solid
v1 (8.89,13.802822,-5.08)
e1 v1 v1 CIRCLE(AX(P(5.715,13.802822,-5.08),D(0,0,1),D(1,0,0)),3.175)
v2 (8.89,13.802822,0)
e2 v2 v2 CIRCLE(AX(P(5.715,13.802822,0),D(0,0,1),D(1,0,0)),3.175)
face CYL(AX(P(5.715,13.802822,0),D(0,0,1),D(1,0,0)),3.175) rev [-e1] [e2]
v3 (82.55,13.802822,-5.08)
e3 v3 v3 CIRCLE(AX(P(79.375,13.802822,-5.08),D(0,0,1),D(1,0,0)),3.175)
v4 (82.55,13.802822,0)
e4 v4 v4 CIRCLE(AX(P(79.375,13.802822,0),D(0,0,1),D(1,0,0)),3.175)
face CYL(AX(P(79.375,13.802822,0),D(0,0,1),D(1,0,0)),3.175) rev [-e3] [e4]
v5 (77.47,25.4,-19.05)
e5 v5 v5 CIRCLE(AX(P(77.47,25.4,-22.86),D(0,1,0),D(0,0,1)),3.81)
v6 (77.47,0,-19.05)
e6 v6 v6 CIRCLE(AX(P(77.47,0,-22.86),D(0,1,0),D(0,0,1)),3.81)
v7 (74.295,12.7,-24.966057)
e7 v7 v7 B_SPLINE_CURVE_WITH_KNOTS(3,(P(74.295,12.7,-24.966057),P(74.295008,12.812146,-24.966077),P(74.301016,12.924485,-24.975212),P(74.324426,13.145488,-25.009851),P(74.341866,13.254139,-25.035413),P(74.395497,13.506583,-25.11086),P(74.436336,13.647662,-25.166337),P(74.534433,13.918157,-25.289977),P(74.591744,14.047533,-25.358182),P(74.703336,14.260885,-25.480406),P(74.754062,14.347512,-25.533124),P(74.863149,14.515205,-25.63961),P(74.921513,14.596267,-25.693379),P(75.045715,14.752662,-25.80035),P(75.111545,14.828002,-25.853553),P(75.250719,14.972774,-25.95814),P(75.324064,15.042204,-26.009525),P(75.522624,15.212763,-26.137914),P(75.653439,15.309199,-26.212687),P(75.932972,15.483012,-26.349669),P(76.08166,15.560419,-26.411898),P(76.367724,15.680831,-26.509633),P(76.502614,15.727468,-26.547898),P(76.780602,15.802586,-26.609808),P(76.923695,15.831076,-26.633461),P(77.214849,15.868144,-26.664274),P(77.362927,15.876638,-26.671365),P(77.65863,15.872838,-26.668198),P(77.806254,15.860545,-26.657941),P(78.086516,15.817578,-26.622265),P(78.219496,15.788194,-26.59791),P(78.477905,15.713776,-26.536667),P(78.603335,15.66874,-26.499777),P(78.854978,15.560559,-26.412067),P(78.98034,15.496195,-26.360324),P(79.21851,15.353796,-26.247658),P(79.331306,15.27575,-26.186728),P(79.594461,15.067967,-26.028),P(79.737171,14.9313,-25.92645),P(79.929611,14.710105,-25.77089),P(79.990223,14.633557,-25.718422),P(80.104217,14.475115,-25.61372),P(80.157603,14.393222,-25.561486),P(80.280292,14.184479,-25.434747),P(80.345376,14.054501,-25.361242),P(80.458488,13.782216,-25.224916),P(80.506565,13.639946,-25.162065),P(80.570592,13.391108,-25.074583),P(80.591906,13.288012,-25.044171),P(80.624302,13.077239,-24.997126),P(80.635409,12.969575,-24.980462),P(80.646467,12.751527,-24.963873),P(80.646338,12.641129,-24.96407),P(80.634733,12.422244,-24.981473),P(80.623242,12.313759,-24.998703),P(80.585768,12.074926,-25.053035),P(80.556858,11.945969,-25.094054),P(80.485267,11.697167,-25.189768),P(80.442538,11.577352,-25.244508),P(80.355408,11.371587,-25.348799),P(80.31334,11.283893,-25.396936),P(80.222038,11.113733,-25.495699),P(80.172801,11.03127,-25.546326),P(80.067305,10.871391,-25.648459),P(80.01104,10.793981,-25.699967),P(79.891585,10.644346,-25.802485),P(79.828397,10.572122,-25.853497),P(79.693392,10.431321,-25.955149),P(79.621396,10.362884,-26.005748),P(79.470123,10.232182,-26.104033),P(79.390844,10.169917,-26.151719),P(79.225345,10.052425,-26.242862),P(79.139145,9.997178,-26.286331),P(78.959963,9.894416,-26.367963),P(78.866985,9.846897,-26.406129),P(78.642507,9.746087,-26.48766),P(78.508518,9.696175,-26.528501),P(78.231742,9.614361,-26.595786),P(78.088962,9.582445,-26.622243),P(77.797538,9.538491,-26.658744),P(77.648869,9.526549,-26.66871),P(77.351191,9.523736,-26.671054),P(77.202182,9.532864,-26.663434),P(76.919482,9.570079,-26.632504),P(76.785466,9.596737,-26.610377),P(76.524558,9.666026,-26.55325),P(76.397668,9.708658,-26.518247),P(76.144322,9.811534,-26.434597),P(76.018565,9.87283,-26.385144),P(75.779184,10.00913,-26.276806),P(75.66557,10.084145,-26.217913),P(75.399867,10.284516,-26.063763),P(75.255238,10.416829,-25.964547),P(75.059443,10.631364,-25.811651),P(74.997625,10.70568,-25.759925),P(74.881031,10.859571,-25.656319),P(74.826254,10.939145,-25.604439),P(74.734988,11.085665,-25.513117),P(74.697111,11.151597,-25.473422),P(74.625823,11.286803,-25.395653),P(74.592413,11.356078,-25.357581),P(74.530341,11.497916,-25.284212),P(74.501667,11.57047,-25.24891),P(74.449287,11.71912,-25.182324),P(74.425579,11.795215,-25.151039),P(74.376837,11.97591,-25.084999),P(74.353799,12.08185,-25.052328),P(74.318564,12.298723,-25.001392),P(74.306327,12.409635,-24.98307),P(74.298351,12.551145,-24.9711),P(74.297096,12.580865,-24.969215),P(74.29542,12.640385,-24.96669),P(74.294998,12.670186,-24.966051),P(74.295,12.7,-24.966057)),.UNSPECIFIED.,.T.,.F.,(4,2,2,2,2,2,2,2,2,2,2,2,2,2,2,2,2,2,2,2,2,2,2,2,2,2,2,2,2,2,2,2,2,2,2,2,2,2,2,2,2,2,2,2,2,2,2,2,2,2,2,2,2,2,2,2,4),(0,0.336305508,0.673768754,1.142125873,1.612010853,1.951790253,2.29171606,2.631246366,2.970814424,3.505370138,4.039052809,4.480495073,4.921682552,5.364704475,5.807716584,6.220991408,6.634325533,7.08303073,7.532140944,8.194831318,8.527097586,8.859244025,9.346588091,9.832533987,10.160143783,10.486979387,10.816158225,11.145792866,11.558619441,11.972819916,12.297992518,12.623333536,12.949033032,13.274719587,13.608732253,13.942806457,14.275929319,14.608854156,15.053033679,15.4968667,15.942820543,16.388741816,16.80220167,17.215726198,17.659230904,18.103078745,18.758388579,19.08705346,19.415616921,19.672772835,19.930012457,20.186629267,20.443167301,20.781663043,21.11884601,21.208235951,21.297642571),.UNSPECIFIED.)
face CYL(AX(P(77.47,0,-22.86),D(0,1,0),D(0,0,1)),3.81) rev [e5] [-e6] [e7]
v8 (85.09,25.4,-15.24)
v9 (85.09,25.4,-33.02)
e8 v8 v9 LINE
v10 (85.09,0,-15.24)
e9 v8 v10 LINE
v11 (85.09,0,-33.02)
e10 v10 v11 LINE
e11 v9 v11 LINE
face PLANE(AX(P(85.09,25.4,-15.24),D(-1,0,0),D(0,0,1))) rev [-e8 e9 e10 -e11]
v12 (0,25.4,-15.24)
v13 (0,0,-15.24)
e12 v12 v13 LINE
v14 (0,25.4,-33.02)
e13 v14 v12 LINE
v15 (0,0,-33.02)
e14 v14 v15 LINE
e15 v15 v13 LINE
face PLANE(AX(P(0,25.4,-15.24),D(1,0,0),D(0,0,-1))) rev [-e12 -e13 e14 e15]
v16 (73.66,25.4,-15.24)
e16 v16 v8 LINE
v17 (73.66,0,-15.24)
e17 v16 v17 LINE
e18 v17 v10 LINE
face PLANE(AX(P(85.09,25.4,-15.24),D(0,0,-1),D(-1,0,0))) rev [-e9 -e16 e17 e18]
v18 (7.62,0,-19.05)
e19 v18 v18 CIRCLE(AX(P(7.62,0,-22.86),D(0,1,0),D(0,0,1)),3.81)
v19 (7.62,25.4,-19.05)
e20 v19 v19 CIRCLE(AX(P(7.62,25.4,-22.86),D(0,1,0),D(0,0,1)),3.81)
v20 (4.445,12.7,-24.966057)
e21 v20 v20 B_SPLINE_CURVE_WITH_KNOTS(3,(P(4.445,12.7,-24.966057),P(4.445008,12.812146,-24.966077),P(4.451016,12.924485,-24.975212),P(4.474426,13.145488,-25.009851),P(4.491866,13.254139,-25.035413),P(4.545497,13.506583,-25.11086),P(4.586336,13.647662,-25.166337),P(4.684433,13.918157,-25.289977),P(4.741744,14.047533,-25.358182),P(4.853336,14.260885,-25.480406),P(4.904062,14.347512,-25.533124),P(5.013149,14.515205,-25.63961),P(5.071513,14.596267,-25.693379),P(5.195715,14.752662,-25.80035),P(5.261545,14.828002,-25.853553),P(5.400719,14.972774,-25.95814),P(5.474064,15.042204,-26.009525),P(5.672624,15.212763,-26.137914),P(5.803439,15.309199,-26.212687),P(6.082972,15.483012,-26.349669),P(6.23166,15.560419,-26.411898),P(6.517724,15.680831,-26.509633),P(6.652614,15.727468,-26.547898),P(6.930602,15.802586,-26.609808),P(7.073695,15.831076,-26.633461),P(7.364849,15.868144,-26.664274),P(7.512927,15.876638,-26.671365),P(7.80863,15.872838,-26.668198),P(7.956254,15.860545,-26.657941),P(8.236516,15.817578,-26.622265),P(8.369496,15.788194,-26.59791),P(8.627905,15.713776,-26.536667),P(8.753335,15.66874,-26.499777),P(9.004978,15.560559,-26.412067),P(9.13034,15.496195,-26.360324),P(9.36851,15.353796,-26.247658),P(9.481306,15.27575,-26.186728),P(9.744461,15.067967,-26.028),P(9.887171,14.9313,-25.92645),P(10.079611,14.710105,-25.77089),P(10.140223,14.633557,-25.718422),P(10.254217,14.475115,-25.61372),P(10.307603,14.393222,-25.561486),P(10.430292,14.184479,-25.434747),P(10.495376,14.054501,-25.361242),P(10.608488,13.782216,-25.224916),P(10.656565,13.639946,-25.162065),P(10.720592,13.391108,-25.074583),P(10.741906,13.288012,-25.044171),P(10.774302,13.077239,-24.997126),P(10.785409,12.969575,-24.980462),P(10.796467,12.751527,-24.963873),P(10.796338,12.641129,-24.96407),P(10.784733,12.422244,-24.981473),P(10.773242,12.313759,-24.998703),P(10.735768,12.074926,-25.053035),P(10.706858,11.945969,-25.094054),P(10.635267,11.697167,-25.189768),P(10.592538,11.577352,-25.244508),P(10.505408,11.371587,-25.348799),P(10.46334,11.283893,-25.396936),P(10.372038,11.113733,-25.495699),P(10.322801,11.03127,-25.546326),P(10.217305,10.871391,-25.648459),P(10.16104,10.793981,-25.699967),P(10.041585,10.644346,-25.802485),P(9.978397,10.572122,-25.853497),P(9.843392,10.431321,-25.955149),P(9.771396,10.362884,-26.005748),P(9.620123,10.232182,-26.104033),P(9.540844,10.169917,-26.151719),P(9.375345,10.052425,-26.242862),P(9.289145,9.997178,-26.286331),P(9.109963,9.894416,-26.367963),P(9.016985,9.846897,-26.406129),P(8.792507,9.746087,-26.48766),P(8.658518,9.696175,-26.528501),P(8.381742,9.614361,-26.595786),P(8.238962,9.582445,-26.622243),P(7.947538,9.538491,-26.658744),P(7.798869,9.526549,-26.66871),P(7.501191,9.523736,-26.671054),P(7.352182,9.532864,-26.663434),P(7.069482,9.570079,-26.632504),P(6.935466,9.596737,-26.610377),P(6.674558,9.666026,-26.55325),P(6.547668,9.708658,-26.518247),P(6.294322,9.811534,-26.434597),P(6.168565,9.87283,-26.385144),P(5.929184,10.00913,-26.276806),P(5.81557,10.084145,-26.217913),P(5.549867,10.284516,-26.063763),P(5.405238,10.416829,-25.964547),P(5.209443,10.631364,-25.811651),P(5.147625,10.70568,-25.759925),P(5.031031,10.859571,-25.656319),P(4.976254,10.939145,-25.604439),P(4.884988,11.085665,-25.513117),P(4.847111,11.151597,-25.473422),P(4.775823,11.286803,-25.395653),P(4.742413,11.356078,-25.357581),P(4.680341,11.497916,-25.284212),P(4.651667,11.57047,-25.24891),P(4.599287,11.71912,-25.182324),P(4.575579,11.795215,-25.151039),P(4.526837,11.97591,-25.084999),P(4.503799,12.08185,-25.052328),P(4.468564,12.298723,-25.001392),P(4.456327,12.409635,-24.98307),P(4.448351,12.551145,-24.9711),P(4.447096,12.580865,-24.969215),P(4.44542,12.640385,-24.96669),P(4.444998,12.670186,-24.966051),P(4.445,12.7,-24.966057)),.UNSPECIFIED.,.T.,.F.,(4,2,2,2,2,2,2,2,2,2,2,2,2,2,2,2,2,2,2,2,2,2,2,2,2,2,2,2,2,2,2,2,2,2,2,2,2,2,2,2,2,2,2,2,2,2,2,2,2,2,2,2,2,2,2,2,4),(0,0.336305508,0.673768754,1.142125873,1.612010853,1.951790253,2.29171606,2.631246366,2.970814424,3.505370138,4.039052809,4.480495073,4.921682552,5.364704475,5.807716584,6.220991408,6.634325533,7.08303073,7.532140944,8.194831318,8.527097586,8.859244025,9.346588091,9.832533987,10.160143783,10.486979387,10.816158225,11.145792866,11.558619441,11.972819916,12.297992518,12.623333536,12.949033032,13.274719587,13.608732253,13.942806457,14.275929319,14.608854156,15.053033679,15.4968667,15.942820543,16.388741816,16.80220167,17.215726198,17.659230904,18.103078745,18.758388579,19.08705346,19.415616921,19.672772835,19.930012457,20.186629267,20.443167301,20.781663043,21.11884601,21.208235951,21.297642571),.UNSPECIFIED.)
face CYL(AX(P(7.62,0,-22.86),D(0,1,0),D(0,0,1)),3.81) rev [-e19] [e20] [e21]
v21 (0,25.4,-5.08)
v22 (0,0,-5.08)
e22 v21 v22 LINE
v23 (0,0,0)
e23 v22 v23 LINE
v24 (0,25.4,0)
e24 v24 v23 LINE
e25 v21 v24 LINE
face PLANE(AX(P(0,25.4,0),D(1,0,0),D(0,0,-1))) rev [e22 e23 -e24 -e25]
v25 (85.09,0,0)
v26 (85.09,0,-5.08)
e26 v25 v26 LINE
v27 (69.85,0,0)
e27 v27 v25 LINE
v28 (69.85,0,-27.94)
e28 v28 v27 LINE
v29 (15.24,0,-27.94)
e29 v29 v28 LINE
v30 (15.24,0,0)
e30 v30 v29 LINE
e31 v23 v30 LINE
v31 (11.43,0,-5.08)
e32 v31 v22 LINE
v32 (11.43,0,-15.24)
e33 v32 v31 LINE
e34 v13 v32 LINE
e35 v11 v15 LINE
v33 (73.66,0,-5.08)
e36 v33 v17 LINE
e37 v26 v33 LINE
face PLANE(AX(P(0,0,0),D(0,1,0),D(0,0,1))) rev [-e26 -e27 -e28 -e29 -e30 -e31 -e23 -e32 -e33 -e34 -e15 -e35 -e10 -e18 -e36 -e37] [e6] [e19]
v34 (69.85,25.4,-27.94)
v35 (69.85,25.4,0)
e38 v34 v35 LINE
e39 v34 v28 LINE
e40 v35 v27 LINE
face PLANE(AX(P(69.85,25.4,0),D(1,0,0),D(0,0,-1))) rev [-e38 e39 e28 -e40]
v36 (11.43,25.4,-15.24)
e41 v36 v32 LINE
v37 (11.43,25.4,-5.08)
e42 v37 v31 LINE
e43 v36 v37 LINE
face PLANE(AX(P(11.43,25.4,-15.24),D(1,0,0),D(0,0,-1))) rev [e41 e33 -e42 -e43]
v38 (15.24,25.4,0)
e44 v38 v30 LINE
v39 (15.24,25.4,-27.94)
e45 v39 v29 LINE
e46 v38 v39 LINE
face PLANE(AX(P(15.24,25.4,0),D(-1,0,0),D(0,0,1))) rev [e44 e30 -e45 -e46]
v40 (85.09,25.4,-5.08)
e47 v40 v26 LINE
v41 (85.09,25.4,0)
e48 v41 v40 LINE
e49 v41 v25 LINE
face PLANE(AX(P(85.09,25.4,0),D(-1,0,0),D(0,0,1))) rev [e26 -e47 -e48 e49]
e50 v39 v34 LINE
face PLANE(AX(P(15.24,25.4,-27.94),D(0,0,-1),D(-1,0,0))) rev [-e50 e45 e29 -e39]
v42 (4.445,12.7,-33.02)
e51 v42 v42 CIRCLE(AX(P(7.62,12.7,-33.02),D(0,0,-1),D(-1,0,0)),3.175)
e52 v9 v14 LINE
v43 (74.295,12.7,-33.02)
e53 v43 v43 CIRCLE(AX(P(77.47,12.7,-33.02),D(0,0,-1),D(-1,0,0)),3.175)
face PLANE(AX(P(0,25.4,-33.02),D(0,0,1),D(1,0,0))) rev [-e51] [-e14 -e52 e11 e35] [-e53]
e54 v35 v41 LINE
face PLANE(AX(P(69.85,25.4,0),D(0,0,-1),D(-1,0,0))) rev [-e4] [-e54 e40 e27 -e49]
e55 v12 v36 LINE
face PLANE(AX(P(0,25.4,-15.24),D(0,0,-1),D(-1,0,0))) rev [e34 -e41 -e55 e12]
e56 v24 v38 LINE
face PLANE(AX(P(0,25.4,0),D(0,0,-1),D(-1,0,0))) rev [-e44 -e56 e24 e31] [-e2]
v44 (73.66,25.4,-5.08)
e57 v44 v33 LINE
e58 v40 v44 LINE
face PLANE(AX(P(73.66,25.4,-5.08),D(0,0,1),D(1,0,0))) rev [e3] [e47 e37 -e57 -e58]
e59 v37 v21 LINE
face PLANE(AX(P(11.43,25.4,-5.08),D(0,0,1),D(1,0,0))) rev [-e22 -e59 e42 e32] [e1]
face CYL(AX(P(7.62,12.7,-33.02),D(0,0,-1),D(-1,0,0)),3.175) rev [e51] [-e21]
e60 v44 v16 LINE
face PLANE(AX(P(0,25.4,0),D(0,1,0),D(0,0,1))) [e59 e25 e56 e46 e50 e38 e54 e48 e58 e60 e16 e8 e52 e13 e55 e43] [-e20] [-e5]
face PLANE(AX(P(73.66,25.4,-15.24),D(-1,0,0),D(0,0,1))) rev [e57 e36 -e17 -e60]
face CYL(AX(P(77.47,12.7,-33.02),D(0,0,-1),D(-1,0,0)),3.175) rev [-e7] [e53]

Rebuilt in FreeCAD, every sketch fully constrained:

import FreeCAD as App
import Part
import Sketcher
from FreeCAD import Vector
Q = App.Units.Quantity

doc = App.newDocument("Part")
body = doc.addObject("PartDesign::Body", "Body")

# Sketch on XZ plane
sketch1 = doc.addObject("Sketcher::SketchObject", "Sketch")
body.addObject(sketch1)
sketch1.AttachmentSupport = (doc.XZ_Plane, [""])
sketch1.MapMode = "FlatFace"
sketch1.addGeometry([
    Part.LineSegment(Vector(70, 0, 0), Vector(85, 0, 0)),  # 0
    Part.LineSegment(Vector(85, 0, 0), Vector(85, -5, 0)),  # 1
    Part.LineSegment(Vector(85, -5, 0), Vector(74, -5, 0)),  # 2
    Part.LineSegment(Vector(74, -5, 0), Vector(74, -15, 0)),  # 3
    Part.LineSegment(Vector(74, -15, 0), Vector(85, -15, 0)),  # 4
    Part.LineSegment(Vector(85, -15, 0), Vector(85, -33, 0)),  # 5
    Part.LineSegment(Vector(85, -33, 0), Vector(0, -33, 0)),  # 6
    Part.LineSegment(Vector(0, -33, 0), Vector(0, -15, 0)),  # 7
    Part.LineSegment(Vector(0, -15, 0), Vector(11, -15, 0)),  # 8
    Part.LineSegment(Vector(11, -15, 0), Vector(11, -5, 0)),  # 9
    Part.LineSegment(Vector(11, -5, 0), Vector(0, -5, 0)),  # 10
    Part.LineSegment(Vector(0, -5, 0), Vector(0, 0, 0)),  # 11
    Part.LineSegment(Vector(0, 0, 0), Vector(15, 0, 0)),  # 12
    Part.LineSegment(Vector(15, 0, 0), Vector(15, -28, 0)),  # 13
    Part.LineSegment(Vector(15, -28, 0), Vector(70, -28, 0)),  # 14
    Part.LineSegment(Vector(70, -28, 0), Vector(70, 0, 0)),  # 15
], False)
sketch1.addConstraint([
    Sketcher.Constraint("Coincident", 0, 2, 1, 1),
    Sketcher.Constraint("Coincident", 1, 2, 2, 1),
    Sketcher.Constraint("Coincident", 2, 2, 3, 1),
    Sketcher.Constraint("Coincident", 3, 2, 4, 1),
    Sketcher.Constraint("Coincident", 4, 2, 5, 1),
    Sketcher.Constraint("Coincident", 5, 2, 6, 1),
    Sketcher.Constraint("Coincident", 6, 2, 7, 1),
    Sketcher.Constraint("Coincident", 7, 2, 8, 1),
    Sketcher.Constraint("Coincident", 8, 2, 9, 1),
    Sketcher.Constraint("Coincident", 9, 2, 10, 1),
    Sketcher.Constraint("Coincident", 10, 2, 11, 1),
    Sketcher.Constraint("Coincident", 11, 2, 12, 1),
    Sketcher.Constraint("Coincident", 12, 2, 13, 1),
    Sketcher.Constraint("Coincident", 13, 2, 14, 1),
    Sketcher.Constraint("Coincident", 14, 2, 15, 1),
    Sketcher.Constraint("Coincident", 15, 2, 0, 1),
    Sketcher.Constraint("Horizontal", 0),
    Sketcher.Constraint("Vertical", 1),
    Sketcher.Constraint("Horizontal", 2),
    Sketcher.Constraint("Vertical", 3),
    Sketcher.Constraint("Horizontal", 4),
    Sketcher.Constraint("Vertical", 5),
    Sketcher.Constraint("Horizontal", 6),
    Sketcher.Constraint("Vertical", 7),
    Sketcher.Constraint("Horizontal", 8),
    Sketcher.Constraint("Vertical", 9),
    Sketcher.Constraint("Horizontal", 10),
    Sketcher.Constraint("Vertical", 11),
    Sketcher.Constraint("Horizontal", 12),
    Sketcher.Constraint("Vertical", 13),
    Sketcher.Constraint("Horizontal", 14),
    Sketcher.Constraint("Vertical", 15),
    Sketcher.Constraint("Coincident", 11, 2, -1, 1),
    Sketcher.Constraint("PointOnObject", 0, 2, -1),
    Sketcher.Constraint("PointOnObject", 6, 2, -2),
    Sketcher.Constraint("Horizontal", 4, 2, 7, 2),
    Sketcher.Constraint("Horizontal", 2, 2, 9, 2),
    Sketcher.Constraint("Vertical", 1, 2, 4, 2),
    Sketcher.Constraint("Equal", 4, 8),
    Sketcher.Constraint("Equal", 0, 12),
    Sketcher.Constraint("DistanceX", 0, 1, 0, 2, Q("0.6 in")),
    Sketcher.Constraint("DistanceY", 1, 2, 1, 1, Q("0.2 in")),
    Sketcher.Constraint("DistanceY", 3, 2, 3, 1, Q("0.4 in")),
    Sketcher.Constraint("DistanceY", 5, 2, 5, 1, Q("0.7 in")),
    Sketcher.Constraint("DistanceY", 13, 2, 13, 1, Q("1.1 in")),
    Sketcher.Constraint("DistanceX", 2, 2, 2, 1, Q("0.45 in")),
    Sketcher.Constraint("DistanceX", 6, 2, 6, 1, Q("3.35 in")),
])
pad1 = doc.addObject("PartDesign::Pad", "Pad")
body.addObject(pad1)
pad1.Profile = sketch1
pad1.Length = Q("1 in")
pad1.Reversed = True

# Sketch on XZ plane
sketch2 = doc.addObject("Sketcher::SketchObject", "Sketch001")
body.addObject(sketch2)
sketch2.AttachmentSupport = (doc.XZ_Plane, [""])
sketch2.MapMode = "FlatFace"
sketch2.AttachmentOffset = App.Placement(Vector(0, 0, -1 * 25.4), App.Rotation())
sketch2.addGeometry([
    Part.Circle(Vector(7.6, -22.9, 0), Vector(0, 0, 1), 3.8),
    Part.Circle(Vector(77.5, -22.9, 0), Vector(0, 0, 1), 3.8),
], False)
sketch2.addConstraint([
    Sketcher.Constraint("Equal", 0, 1),
    Sketcher.Constraint("Horizontal", 0, 3, 1, 3),
    Sketcher.Constraint("Diameter", 0, Q("0.3 in")),
    Sketcher.Constraint("DistanceX", -1, 1, 0, 3, Q("0.3 in")),
    Sketcher.Constraint("DistanceY", 0, 3, -1, 1, Q("0.9 in")),
    Sketcher.Constraint("DistanceX", -1, 1, 1, 3, Q("3.05 in")),
])
pocket1 = doc.addObject("PartDesign::Pocket", "Pocket")
body.addObject(pocket1)
pocket1.Profile = sketch2
pocket1.Type = "ThroughAll"
pocket1.Reversed = True

# Sketch on XY plane
sketch3 = doc.addObject("Sketcher::SketchObject", "Sketch002")
body.addObject(sketch3)
sketch3.AttachmentSupport = (doc.XY_Plane, [""])
sketch3.MapMode = "FlatFace"
sketch3.addGeometry([
    Part.Circle(Vector(5.7, 13.8, 0), Vector(0, 0, 1), 3.2),
    Part.Circle(Vector(79.4, 13.8, 0), Vector(0, 0, 1), 3.2),
], False)
sketch3.addConstraint([
    Sketcher.Constraint("Equal", 0, 1),
    Sketcher.Constraint("Horizontal", 0, 3, 1, 3),
    Sketcher.Constraint("Diameter", 0, Q("0.25 in")),
    Sketcher.Constraint("DistanceX", 0, 3, 1, 3, Q("2.9 in")),
    Sketcher.Constraint("DistanceX", -1, 1, 0, 3, Q("0.225 in")),
    Sketcher.Constraint("DistanceY", -1, 1, 0, 3, Q("13.802822 mm")),
])
doc.recompute()
hole = doc.addObject("PartDesign::Hole", "Hole")
body.addObject(hole)
hole.Profile = sketch3
hole.ThreadType = "None"
hole.Diameter = Q("0.25 in")
hole.DepthType = "Dimension"
hole.Depth = Q("0.3 in")
hole.DrillPoint = "Angled"
hole.DrillPointAngle = 118

# Sketch on XY plane
sketch4 = doc.addObject("Sketcher::SketchObject", "Sketch003")
body.addObject(sketch4)
sketch4.AttachmentSupport = (doc.XY_Plane, [""])
sketch4.MapMode = "FlatFace"
sketch4.AttachmentOffset = App.Placement(Vector(0, 0, -1.3 * 25.4), App.Rotation())
sketch4.addGeometry([
    Part.Circle(Vector(77.5, 12.7, 0), Vector(0, 0, 1), 3.2),
    Part.Circle(Vector(7.6, 12.7, 0), Vector(0, 0, 1), 3.2),
], False)
sketch4.addConstraint([
    Sketcher.Constraint("Equal", 0, 1),
    Sketcher.Constraint("Horizontal", 0, 3, 1, 3),
    Sketcher.Constraint("Diameter", 0, Q("0.25 in")),
    Sketcher.Constraint("DistanceY", -1, 1, 0, 3, Q("0.5 in")),
    Sketcher.Constraint("DistanceX", -1, 1, 1, 3, Q("0.3 in")),
    Sketcher.Constraint("DistanceX", -1, 1, 0, 3, Q("3.05 in")),
])
doc.recompute()
hole2 = doc.addObject("PartDesign::Hole", "Hole001")
body.addObject(hole2)
hole2.Profile = sketch4
hole2.ThreadType = "None"
hole2.Diameter = Q("0.25 in")
hole2.DepthType = "Dimension"
hole2.Depth = Q("0.4 in")
hole2.DrillPoint = "Angled"
hole2.DrillPointAngle = 118
hole2.Reversed = True

doc.recompute()
